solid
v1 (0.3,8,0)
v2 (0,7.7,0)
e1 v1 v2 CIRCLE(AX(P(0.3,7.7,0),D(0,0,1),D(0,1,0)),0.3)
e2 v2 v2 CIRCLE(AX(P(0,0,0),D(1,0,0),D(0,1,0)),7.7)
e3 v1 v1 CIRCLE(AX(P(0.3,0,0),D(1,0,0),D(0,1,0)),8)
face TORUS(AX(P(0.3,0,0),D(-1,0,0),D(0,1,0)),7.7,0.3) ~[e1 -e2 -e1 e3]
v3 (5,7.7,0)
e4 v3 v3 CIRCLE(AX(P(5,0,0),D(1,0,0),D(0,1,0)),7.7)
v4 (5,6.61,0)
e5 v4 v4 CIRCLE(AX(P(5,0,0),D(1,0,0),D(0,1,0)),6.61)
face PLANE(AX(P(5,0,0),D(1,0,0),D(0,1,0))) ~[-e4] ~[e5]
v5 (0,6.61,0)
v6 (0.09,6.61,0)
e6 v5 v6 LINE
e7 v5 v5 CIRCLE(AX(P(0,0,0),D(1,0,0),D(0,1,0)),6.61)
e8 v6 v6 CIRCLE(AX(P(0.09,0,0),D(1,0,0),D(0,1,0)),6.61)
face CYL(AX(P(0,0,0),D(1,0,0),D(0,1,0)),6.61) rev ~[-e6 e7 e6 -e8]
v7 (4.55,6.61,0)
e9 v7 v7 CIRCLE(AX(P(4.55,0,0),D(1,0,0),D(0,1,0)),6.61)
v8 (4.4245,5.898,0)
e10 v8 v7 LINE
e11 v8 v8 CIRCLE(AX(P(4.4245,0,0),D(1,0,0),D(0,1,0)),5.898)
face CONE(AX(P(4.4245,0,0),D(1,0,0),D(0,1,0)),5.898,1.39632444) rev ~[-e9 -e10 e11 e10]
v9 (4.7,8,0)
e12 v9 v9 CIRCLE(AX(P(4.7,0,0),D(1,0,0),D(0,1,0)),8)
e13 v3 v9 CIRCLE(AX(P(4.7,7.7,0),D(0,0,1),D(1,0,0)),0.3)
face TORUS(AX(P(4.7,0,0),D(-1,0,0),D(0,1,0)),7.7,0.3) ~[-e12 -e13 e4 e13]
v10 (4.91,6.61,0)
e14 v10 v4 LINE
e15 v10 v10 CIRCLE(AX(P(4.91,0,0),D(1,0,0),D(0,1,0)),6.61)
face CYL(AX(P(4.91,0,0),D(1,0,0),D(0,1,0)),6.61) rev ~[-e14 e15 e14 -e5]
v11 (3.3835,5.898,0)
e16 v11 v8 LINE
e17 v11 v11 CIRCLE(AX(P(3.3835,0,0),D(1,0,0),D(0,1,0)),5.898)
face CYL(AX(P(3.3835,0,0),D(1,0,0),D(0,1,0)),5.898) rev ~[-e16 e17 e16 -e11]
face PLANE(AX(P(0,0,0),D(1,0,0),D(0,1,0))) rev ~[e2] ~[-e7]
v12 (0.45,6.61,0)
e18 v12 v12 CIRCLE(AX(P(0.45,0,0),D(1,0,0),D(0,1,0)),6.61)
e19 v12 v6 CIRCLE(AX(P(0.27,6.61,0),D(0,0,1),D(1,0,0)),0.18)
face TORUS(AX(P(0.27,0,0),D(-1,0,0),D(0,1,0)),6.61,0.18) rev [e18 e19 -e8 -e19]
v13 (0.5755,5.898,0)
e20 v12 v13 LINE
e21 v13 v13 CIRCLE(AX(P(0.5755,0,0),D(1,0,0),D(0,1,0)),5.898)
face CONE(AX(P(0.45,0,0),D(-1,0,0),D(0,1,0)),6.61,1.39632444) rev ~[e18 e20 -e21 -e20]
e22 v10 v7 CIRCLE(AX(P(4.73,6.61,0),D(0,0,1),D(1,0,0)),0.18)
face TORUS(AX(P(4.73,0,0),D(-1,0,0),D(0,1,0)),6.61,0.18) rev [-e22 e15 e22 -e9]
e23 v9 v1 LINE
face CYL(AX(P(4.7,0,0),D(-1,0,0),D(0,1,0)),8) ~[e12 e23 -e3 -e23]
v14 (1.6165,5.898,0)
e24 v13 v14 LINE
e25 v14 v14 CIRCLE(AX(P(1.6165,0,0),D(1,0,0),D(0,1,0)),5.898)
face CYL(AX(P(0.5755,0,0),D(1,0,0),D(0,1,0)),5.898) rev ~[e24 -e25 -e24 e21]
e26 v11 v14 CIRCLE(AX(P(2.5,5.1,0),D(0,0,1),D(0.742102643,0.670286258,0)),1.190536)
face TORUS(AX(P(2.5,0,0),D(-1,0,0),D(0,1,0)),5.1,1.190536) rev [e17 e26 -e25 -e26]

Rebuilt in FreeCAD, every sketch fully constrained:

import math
import FreeCAD as App
import Part
import Sketcher

doc = App.newDocument("Part")
body = doc.addObject("PartDesign::Body", "Body")

sketch1 = body.newObject("Sketcher::SketchObject", "Sketch")
sketch1.AttachmentSupport = (doc.getObject("XY_Plane"), [""])
sketch1.MapMode = "FlatFace"
sketch1.addGeometry([
    Part.LineSegment(App.Vector(0, 7.7, 0), App.Vector(0, 6.61, 0)),
    Part.LineSegment(App.Vector(0, 6.61, 0), App.Vector(0.09, 6.61, 0)),
    Part.ArcOfCircle(Part.Circle(App.Vector(0.27, 6.61, 0), App.Vector(0, 0, 1), 0.18), math.radians(0), math.radians(180)),
    Part.LineSegment(App.Vector(0.45, 6.61, 0), App.Vector(0.58, 5.9, 0)),
    Part.LineSegment(App.Vector(0.58, 5.9, 0), App.Vector(1.62, 5.9, 0)),
    Part.ArcOfCircle(Part.Circle(App.Vector(2.5, 5.1, 0), App.Vector(0, 0, 1), 1.19), math.radians(42), math.radians(138)),
    Part.LineSegment(App.Vector(3.38, 5.9, 0), App.Vector(4.42, 5.9, 0)),
    Part.LineSegment(App.Vector(4.42, 5.9, 0), App.Vector(4.55, 6.61, 0)),
    Part.ArcOfCircle(Part.Circle(App.Vector(4.73, 6.61, 0), App.Vector(0, 0, 1), 0.18), math.radians(0), math.radians(180)),
    Part.LineSegment(App.Vector(4.91, 6.61, 0), App.Vector(5, 6.61, 0)),
    Part.LineSegment(App.Vector(5, 6.61, 0), App.Vector(5, 7.7, 0)),
    Part.ArcOfCircle(Part.Circle(App.Vector(4.7, 7.7, 0), App.Vector(0, 0, 1), 0.3), math.radians(0), math.radians(90)),
    Part.LineSegment(App.Vector(4.7, 8, 0), App.Vector(0.3, 8, 0)),
    Part.ArcOfCircle(Part.Circle(App.Vector(0.3, 7.7, 0), App.Vector(0, 0, 1), 0.3), math.radians(90), math.radians(180)),
], False)
sketch1.addConstraint([
    Sketcher.Constraint("Coincident", 0, 2, 1, 1),
    Sketcher.Constraint("Coincident", 1, 2, 2, 2),
    Sketcher.Constraint("Coincident", 2, 1, 3, 1),
    Sketcher.Constraint("Coincident", 3, 2, 4, 1),
    Sketcher.Constraint("Coincident", 4, 2, 5, 2),
    Sketcher.Constraint("Coincident", 5, 1, 6, 1),
    Sketcher.Constraint("Coincident", 6, 2, 7, 1),
    Sketcher.Constraint("Coincident", 7, 2, 8, 2),
    Sketcher.Constraint("Coincident", 8, 1, 9, 1),
    Sketcher.Constraint("Coincident", 9, 2, 10, 1),
    Sketcher.Constraint("Tangent", 10, 2, 11, 1),
    Sketcher.Constraint("Tangent", 11, 2, 12, 1),
    Sketcher.Constraint("Tangent", 12, 2, 13, 1),
    Sketcher.Constraint("Tangent", 13, 2, 0, 1),
    Sketcher.Constraint("Vertical", 0),
    Sketcher.Constraint("Horizontal", 1),
    Sketcher.Constraint("Horizontal", 4),
    Sketcher.Constraint("Horizontal", 6),
    Sketcher.Constraint("Horizontal", 9),
    Sketcher.Constraint("Vertical", 10),
    Sketcher.Constraint("Horizontal", 12),
    Sketcher.Constraint("Equal", 2, 8),
    Sketcher.Constraint("Equal", 11, 13),
    Sketcher.Constraint("PointOnObject", 0, 2, -2),
    Sketcher.Constraint("Horizontal", 2, 3, 8, 3),
    Sketcher.Constraint("Horizontal", 8, 3, 0, 2),
    Sketcher.Constraint("Horizontal", 1, 2, 2, 1),
    Sketcher.Constraint("Horizontal", 4, 2, 5, 1),
    Sketcher.Constraint("Horizontal", 2, 1, 7, 2),
    Sketcher.Constraint("Horizontal", 7, 2, 8, 1),
    Sketcher.Constraint("Equal", 4, 6),
    Sketcher.Constraint("Equal", 1, 9),
    Sketcher.Constraint("Equal", 3, 7),
    Sketcher.Constraint("Radius", 11, 0.3),
    Sketcher.Constraint("Radius", 2, 0.18),
    Sketcher.Constraint("DistanceX", 12, 2, 12, 1, 4.4),
    Sketcher.Constraint("DistanceY", -1, 1, 11, 2, 8.0),
    Sketcher.Constraint("DistanceX", 1, 1, 1, 2, 0.09),
    Sketcher.Constraint("DistanceY", 0, 2, 0, 1, 1.09),
    Sketcher.Constraint("DistanceY", -1, 1, 5, 3, 5.1),
    Sketcher.Constraint("Radius", 5, 1.1905),
    Sketcher.Constraint("DistanceX", 4, 1, 4, 2, 1.041),
    Sketcher.Constraint("Distance", 3, 0.723),
])
revolution = body.newObject("PartDesign::Revolution", "Revolution")
revolution.Profile = sketch1
revolution.ReferenceAxis = (sketch1, ["H_Axis"])
revolution.Angle = 360

doc.recompute()
